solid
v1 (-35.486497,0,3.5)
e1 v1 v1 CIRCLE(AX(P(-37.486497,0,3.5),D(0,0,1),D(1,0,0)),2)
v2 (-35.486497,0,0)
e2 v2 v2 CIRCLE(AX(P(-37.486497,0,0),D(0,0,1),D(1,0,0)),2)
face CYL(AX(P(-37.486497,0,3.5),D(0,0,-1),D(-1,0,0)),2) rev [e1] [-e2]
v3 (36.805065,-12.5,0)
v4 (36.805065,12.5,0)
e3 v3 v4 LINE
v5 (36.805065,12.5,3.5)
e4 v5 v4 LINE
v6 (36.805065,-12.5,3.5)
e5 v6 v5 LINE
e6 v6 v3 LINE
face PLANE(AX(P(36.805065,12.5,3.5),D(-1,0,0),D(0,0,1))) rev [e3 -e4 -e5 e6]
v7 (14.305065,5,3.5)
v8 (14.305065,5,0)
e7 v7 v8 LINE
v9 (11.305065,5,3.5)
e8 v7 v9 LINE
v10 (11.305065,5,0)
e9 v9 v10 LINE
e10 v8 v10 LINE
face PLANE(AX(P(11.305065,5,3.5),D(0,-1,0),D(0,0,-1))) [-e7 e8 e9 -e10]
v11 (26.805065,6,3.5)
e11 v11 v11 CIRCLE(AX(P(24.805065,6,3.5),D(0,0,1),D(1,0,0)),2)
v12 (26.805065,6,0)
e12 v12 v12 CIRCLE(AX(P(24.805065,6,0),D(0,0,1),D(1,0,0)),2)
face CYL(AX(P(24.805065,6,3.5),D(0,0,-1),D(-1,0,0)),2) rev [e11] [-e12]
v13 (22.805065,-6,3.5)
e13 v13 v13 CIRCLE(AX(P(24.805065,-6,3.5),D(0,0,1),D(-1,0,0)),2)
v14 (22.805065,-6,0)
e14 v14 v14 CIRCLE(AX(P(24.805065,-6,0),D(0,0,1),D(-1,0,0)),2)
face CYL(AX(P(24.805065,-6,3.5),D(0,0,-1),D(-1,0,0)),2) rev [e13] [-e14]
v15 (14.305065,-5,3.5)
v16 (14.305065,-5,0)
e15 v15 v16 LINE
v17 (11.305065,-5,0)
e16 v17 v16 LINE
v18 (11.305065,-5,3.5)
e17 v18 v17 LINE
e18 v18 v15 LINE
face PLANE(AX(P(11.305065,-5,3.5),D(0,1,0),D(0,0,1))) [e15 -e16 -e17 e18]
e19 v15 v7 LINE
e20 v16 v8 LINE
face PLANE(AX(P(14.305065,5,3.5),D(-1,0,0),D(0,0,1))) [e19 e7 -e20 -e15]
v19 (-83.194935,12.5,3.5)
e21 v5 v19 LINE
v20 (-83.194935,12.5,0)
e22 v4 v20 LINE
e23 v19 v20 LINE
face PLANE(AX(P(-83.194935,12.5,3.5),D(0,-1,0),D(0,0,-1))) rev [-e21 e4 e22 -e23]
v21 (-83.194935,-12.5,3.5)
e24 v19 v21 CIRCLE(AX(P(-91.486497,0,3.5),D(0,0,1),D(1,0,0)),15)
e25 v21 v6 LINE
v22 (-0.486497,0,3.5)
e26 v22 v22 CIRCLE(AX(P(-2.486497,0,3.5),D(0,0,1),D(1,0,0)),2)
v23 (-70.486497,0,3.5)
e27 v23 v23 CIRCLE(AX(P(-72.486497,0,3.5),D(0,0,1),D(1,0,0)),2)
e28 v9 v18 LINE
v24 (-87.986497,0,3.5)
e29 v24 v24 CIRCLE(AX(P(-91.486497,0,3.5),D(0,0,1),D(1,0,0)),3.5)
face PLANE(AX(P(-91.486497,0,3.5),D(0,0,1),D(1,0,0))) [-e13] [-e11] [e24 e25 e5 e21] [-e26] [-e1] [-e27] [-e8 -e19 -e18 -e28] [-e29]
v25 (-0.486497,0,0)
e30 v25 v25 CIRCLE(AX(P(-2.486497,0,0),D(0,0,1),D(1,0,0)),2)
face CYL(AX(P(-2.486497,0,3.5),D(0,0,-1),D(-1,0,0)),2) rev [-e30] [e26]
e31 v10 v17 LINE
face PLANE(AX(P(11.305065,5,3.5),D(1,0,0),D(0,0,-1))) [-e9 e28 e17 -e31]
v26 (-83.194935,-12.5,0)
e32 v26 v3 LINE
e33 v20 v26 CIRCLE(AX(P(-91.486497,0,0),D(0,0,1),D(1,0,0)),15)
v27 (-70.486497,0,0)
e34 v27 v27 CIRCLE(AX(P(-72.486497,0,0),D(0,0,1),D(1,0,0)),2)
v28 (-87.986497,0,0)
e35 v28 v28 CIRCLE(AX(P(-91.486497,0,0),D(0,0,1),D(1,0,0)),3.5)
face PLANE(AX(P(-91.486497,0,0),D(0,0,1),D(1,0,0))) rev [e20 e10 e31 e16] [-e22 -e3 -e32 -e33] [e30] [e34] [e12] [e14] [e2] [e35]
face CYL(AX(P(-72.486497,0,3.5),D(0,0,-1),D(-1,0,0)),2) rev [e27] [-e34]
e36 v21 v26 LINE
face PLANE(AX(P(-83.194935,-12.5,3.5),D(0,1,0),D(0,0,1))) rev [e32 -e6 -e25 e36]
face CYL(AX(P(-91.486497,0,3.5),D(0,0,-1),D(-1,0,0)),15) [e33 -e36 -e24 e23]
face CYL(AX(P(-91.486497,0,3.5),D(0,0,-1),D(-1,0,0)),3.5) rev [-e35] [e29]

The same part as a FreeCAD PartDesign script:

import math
import FreeCAD as App
import Part
import Sketcher
from FreeCAD import Vector

doc = App.newDocument("Part")
params = doc.addObject("Spreadsheet::Sheet", "Params")
for row, (alias, value) in enumerate([
    ("sketch1_diameter", "4 mm"),
    ("sketch1_diameter2", "7 mm"),
    ("sketch1_radius", "15 mm"),
    ("sketch1_width", "120 mm"),
    ("sketch1_width2", "3 mm"),
    ("pad1_length", "3.5 mm"),
], start=1):
    params.set(f"A{row}", alias)
    params.set(f"B{row}", "=" + value)
    params.setAlias(f"B{row}", alias)

body = doc.addObject("PartDesign::Body", "Body")

# Sketch on XY plane
sketch1 = body.newObject("Sketcher::SketchObject", "Sketch")
sketch1.AttachmentSupport = (doc.getObject("XY_Plane"), [""])
sketch1.MapMode = "FlatFace"
sketch1.addGeometry(Part.LineSegment(Vector(36.8, -12.5, 0), Vector(36.8, 12.5, 0)), False)
sketch1.addGeometry(Part.LineSegment(Vector(36.8, 12.5, 0), Vector(-83.2, 12.5, 0)), False)
sketch1.addGeometry(Part.ArcOfCircle(Part.Circle(Vector(-91.5, 0, 0), Vector(0, 0, 1), 15), math.radians(56), math.radians(304)), False)
sketch1.addGeometry(Part.LineSegment(Vector(-83.2, -12.5, 0), Vector(36.8, -12.5, 0)), False)
sketch1.addGeometry(Part.Circle(Vector(24.8, -6, 0), Vector(0, 0, 1), 2), False)
sketch1.addGeometry(Part.LineSegment(Vector(11.3, -5, 0), Vector(11.3, 5, 0)), False)
sketch1.addGeometry(Part.LineSegment(Vector(11.3, 5, 0), Vector(14.3, 5, 0)), False)
sketch1.addGeometry(Part.LineSegment(Vector(14.3, 5, 0), Vector(14.3, -5, 0)), False)
sketch1.addGeometry(Part.LineSegment(Vector(14.3, -5, 0), Vector(11.3, -5, 0)), False)
sketch1.addGeometry(Part.Circle(Vector(-2.5, 0, 0), Vector(0, 0, 1), 2), False)
sketch1.addGeometry(Part.Circle(Vector(24.8, 6, 0), Vector(0, 0, 1), 2), False)
sketch1.addGeometry(Part.Circle(Vector(-37.5, 0, 0), Vector(0, 0, 1), 2), False)
sketch1.addGeometry(Part.Circle(Vector(-72.5, 0, 0), Vector(0, 0, 1), 2), False)
sketch1.addGeometry(Part.Circle(Vector(-91.5, 0, 0), Vector(0, 0, 1), 3.5), False)
sketch1.addConstraint(Sketcher.Constraint("Coincident", 0, 2, 1, 1))
sketch1.addConstraint(Sketcher.Constraint("Coincident", 1, 2, 2, 1))
sketch1.addConstraint(Sketcher.Constraint("Coincident", 2, 2, 3, 1))
sketch1.addConstraint(Sketcher.Constraint("Coincident", 3, 2, 0, 1))
sketch1.addConstraint(Sketcher.Constraint("Coincident", 5, 2, 6, 1))
sketch1.addConstraint(Sketcher.Constraint("Coincident", 6, 2, 7, 1))
sketch1.addConstraint(Sketcher.Constraint("Coincident", 7, 2, 8, 1))
sketch1.addConstraint(Sketcher.Constraint("Coincident", 8, 2, 5, 1))
sketch1.addConstraint(Sketcher.Constraint("Vertical", 0))
sketch1.addConstraint(Sketcher.Constraint("Horizontal", 1))
sketch1.addConstraint(Sketcher.Constraint("Horizontal", 3))
sketch1.addConstraint(Sketcher.Constraint("Vertical", 5))
sketch1.addConstraint(Sketcher.Constraint("Horizontal", 6))
sketch1.addConstraint(Sketcher.Constraint("Vertical", 7))
sketch1.addConstraint(Sketcher.Constraint("Horizontal", 8))
sketch1.addConstraint(Sketcher.Constraint("Coincident", 13, 3, 2, 3))
sketch1.addConstraint(Sketcher.Constraint("Equal", 4, 9))
sketch1.addConstraint(Sketcher.Constraint("Equal", 9, 10))
sketch1.addConstraint(Sketcher.Constraint("Equal", 10, 11))
sketch1.addConstraint(Sketcher.Constraint("Equal", 11, 12))
sketch1.addConstraint(Sketcher.Constraint("Symmetric", 4, 3, 10, 3, -1))
sketch1.addConstraint(Sketcher.Constraint("Symmetric", 1, 2, 2, 2, -1))
sketch1.addConstraint(Sketcher.Constraint("PointOnObject", 9, 3, -1))
sketch1.addConstraint(Sketcher.Constraint("PointOnObject", 11, 3, -1))
sketch1.addConstraint(Sketcher.Constraint("PointOnObject", 12, 3, -1))
sketch1.addConstraint(Sketcher.Constraint("Diameter", 4, 4.0))
sketch1.addConstraint(Sketcher.Constraint("Diameter", 13, 7.0))
sketch1.addConstraint(Sketcher.Constraint("Radius", 2, 15.0))
sketch1.addConstraint(Sketcher.Constraint("DistanceX", 1, 2, 1, 1, 120.0))
sketch1.addConstraint(Sketcher.Constraint("DistanceX", 6, 1, 6, 2, 3.0))
sketch1.addConstraint(Sketcher.Constraint("DistanceY", 0, 1, 0, 2, 25.0))
sketch1.addConstraint(Sketcher.Constraint("DistanceY", 5, 1, 5, 2, 10.0))
sketch1.addConstraint(Sketcher.Constraint("DistanceY", 4, 3, -1, 1, 6.0))
sketch1.addConstraint(Sketcher.Constraint("DistanceY", -1, 1, 5, 2, 5.0))
sketch1.addConstraint(Sketcher.Constraint("DistanceX", 2, 3, 9, 3, 89.0))
sketch1.addConstraint(Sketcher.Constraint("DistanceX", 11, 3, 9, 3, 35.0))
sketch1.addConstraint(Sketcher.Constraint("DistanceX", 2, 3, 12, 3, 19.0))
sketch1.addConstraint(Sketcher.Constraint("DistanceX", 10, 3, 0, 2, 12.0))
sketch1.addConstraint(Sketcher.Constraint("DistanceX", 5, 2, 10, 3, 13.5))
sketch1.addConstraint(Sketcher.Constraint("DistanceX", 2, 3, -1, 1, 91.486497))
sketch1.setExpression("Constraints[25]", "Params.sketch1_diameter")
sketch1.setExpression("Constraints[26]", "Params.sketch1_diameter2")
sketch1.setExpression("Constraints[27]", "Params.sketch1_radius")
sketch1.setExpression("Constraints[28]", "Params.sketch1_width")
sketch1.setExpression("Constraints[29]", "Params.sketch1_width2")
pad1 = body.newObject("PartDesign::Pad", "Pad")
pad1.Profile = sketch1
pad1.setExpression("Length", "Params.pad1_length")

doc.recompute()
